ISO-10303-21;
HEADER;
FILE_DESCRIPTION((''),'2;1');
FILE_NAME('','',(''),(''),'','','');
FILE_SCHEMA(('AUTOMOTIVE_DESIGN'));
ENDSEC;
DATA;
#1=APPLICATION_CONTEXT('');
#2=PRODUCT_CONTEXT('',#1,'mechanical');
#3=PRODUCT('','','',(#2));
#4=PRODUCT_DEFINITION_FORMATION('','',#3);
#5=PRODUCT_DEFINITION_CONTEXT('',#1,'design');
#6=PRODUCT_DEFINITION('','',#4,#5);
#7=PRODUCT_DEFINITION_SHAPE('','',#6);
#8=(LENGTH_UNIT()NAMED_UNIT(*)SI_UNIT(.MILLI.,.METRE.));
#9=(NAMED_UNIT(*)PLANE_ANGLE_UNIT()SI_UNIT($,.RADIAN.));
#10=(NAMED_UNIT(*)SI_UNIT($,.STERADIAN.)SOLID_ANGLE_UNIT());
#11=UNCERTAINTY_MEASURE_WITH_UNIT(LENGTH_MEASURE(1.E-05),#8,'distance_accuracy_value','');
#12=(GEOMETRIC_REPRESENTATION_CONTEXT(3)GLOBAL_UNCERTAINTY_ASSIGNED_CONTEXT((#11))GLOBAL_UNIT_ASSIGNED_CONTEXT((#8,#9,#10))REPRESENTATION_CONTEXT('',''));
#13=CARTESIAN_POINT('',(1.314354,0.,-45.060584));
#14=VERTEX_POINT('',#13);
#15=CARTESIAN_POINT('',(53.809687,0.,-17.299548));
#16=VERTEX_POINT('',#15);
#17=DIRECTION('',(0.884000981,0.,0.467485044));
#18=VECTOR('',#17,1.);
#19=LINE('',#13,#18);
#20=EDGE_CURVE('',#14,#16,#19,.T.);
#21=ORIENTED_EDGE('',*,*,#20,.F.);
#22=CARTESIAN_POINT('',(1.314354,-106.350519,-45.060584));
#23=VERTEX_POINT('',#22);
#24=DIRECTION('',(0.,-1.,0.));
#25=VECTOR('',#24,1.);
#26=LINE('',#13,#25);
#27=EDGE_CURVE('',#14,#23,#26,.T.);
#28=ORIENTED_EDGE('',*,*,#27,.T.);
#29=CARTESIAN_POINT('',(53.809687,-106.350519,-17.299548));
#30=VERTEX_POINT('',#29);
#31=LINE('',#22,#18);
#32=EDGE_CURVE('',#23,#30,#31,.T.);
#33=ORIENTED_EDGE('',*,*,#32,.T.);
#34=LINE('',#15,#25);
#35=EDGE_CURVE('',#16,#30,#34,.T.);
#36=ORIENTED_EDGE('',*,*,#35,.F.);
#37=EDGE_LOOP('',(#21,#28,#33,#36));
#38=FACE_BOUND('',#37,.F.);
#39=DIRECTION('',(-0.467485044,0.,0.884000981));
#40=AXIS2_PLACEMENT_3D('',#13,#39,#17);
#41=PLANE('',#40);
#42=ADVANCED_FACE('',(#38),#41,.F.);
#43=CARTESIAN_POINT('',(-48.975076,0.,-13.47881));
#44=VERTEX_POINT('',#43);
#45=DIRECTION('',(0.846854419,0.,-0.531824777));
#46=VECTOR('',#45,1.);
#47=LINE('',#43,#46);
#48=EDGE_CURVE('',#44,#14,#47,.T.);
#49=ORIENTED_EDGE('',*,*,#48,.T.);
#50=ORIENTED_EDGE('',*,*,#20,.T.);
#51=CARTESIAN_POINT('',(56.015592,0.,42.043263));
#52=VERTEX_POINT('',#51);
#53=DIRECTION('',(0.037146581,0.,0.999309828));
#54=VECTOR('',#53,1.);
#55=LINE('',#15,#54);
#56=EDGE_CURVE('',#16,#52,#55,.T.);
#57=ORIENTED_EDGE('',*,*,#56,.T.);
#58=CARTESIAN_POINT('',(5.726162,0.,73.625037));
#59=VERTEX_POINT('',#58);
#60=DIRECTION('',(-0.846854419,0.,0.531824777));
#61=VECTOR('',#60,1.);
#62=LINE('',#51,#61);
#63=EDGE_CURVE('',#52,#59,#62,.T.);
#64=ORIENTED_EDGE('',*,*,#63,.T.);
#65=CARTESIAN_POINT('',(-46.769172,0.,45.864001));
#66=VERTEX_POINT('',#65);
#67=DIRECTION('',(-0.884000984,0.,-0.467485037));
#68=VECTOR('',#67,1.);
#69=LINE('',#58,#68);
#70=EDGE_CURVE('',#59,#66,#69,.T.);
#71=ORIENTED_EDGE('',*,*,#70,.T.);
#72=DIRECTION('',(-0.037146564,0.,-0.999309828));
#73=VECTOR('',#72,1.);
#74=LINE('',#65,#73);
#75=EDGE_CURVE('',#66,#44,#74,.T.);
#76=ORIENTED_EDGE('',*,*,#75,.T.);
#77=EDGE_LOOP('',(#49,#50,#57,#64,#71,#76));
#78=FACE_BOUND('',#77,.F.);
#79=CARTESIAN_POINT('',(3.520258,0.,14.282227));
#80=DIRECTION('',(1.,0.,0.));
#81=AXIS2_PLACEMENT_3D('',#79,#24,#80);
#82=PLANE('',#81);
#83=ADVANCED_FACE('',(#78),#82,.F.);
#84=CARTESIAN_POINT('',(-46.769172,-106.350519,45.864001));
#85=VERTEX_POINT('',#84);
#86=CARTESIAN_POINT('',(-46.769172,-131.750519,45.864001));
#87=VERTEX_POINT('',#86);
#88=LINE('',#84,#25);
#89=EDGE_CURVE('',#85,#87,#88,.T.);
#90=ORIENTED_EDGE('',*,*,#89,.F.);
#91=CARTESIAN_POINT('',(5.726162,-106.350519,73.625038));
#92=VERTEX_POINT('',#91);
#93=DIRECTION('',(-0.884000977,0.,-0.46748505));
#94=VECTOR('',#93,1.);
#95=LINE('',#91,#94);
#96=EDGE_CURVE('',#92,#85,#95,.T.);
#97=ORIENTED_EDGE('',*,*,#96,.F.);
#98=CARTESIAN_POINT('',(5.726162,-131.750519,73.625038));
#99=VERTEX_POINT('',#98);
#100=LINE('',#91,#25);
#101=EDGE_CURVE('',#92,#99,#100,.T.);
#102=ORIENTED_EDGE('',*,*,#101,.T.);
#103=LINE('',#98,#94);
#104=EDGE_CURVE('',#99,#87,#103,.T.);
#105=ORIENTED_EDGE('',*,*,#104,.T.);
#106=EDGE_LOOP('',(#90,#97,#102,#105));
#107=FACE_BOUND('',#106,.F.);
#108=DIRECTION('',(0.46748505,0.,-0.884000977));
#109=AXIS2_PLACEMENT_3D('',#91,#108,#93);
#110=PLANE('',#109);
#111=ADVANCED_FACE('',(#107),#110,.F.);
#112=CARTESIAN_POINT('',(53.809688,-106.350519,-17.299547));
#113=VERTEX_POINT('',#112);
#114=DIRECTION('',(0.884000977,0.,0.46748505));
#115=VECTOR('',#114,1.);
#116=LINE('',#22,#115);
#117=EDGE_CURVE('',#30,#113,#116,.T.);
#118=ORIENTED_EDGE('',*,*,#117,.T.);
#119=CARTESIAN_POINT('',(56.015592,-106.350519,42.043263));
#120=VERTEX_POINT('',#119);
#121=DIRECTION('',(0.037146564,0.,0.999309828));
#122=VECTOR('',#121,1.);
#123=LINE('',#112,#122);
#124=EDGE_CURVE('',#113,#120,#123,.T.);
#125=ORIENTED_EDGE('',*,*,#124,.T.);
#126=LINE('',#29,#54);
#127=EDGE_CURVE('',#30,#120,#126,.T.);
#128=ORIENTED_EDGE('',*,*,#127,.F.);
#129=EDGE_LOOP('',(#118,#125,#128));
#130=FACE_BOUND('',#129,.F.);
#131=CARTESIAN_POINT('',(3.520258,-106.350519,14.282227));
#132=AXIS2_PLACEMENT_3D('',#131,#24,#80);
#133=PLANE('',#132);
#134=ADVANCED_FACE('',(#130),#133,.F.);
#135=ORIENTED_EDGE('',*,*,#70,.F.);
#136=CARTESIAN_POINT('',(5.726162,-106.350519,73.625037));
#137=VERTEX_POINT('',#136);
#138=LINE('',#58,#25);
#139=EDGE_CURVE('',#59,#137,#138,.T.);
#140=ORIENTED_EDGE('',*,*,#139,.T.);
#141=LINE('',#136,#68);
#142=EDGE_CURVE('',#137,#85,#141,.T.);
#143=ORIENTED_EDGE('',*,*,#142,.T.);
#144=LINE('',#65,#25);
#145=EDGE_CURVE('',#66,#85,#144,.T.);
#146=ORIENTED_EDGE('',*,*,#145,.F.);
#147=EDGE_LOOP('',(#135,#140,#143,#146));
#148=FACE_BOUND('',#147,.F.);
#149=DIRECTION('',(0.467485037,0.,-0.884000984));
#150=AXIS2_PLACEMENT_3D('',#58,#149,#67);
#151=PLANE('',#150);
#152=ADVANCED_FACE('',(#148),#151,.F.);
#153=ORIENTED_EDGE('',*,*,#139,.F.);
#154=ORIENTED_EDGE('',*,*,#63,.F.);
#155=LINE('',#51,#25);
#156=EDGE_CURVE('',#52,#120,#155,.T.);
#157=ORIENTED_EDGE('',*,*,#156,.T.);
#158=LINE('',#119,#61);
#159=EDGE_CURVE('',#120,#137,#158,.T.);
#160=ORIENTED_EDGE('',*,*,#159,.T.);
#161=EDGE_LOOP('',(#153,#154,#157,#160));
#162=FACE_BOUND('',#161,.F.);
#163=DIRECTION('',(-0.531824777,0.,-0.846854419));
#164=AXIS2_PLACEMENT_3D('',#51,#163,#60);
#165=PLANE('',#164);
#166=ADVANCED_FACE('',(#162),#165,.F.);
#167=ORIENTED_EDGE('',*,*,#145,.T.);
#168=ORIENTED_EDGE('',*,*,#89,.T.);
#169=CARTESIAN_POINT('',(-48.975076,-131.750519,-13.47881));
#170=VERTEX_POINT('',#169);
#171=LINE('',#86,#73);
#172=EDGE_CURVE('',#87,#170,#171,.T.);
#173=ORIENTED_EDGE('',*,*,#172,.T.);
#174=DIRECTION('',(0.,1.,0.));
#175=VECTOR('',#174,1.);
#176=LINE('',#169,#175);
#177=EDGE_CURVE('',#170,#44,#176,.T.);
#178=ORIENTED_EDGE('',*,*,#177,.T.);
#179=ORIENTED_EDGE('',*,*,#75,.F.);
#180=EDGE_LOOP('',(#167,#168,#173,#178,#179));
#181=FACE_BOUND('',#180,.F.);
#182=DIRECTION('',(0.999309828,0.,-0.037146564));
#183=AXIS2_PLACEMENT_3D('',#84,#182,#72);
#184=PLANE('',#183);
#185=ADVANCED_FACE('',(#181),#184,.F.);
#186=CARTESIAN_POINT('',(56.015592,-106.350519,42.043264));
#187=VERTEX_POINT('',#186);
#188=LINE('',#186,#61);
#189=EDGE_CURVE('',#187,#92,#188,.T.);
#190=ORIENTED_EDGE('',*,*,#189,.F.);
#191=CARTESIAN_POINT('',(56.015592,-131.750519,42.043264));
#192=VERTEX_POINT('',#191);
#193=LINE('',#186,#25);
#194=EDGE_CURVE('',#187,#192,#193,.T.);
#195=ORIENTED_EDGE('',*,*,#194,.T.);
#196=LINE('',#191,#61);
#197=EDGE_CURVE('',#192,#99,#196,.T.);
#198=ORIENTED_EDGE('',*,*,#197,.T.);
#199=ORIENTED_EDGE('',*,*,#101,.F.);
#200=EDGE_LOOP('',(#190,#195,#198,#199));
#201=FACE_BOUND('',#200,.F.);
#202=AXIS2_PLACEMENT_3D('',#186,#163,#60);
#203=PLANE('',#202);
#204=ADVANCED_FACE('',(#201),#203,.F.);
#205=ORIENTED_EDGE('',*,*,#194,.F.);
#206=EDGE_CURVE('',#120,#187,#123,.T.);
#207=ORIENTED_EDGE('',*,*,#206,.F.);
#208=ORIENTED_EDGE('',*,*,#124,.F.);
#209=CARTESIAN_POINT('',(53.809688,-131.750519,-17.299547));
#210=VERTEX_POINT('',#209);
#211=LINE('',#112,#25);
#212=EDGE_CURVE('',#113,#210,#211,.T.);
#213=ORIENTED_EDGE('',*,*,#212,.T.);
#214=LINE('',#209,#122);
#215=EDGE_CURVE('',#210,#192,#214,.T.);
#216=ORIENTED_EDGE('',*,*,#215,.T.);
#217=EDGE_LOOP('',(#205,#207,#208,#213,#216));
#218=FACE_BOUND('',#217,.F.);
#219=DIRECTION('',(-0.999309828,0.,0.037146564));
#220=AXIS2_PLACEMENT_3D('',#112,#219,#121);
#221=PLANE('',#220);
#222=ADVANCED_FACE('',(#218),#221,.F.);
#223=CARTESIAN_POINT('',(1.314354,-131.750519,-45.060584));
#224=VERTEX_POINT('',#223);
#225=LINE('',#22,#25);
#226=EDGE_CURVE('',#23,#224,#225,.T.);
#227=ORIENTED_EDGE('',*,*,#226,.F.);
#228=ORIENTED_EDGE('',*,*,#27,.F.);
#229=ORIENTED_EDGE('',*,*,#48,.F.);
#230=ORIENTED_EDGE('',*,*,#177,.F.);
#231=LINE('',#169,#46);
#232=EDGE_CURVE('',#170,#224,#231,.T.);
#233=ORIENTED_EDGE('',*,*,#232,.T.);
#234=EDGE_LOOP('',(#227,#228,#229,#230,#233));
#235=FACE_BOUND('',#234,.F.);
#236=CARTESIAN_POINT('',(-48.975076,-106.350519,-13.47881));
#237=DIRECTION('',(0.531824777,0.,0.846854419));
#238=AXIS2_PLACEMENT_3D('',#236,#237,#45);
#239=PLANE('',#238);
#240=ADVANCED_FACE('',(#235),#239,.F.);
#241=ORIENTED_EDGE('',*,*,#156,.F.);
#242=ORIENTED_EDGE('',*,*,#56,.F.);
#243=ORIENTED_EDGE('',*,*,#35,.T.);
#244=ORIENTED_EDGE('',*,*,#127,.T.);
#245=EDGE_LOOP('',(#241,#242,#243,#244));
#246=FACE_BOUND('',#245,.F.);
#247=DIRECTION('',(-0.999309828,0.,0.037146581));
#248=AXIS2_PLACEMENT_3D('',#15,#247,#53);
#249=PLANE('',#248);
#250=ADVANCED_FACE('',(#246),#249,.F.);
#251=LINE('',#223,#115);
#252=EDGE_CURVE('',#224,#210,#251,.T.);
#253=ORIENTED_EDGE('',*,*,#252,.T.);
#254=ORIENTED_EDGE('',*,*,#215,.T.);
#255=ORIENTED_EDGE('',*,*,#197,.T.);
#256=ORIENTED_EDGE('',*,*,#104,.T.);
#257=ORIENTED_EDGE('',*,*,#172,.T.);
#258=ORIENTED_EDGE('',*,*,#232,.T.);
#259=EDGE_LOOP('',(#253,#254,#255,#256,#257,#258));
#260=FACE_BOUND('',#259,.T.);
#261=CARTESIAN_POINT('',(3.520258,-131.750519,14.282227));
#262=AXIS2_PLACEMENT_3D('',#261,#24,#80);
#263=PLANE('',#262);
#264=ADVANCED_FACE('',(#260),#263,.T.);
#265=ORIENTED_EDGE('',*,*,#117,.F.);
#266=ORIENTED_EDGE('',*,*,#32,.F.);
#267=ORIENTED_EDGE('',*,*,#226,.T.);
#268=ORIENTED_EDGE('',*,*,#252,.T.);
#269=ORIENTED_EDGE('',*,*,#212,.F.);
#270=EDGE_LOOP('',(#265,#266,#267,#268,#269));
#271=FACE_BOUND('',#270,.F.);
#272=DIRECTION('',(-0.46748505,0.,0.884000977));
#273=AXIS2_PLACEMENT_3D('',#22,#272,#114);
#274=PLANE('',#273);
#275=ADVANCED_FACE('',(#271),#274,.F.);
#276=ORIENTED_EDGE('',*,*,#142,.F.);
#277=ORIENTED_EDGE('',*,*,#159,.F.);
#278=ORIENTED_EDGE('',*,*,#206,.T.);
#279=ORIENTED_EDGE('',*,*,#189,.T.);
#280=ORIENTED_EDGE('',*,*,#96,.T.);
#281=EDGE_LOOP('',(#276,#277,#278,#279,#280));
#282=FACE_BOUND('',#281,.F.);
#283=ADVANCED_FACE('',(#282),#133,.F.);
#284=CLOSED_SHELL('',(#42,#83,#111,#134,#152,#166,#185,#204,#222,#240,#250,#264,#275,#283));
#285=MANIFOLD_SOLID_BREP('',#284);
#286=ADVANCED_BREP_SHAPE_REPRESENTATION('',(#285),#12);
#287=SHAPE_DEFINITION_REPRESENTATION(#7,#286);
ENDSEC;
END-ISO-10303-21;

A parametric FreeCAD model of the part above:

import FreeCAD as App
import Part
import Sketcher

V = App.Vector
Q = App.Units.Quantity

doc = App.newDocument("Part")
body = doc.addObject("PartDesign::Body", "Body")

# Sketch on XZ plane
sketch1 = doc.addObject("Sketcher::SketchObject", "Sketch")
body.addObject(sketch1)
sketch1.AttachmentSupport = (doc.XZ_Plane, [""])
sketch1.MapMode = "FlatFace"
sketch1.addGeometry([
    Part.LineSegment(V(1, -45, 0), V(54, -17, 0)),  # 0
    Part.LineSegment(V(54, -17, 0), V(56, 42, 0)),  # 1
    Part.LineSegment(V(56, 42, 0), V(6, 74, 0)),  # 2
    Part.LineSegment(V(6, 74, 0), V(-47, 46, 0)),  # 3
    Part.LineSegment(V(-47, 46, 0), V(-49, -13, 0)),  # 4
    Part.LineSegment(V(-49, -13, 0), V(1, -45, 0)),  # 5
], False)
sketch1.addConstraint([
    Sketcher.Constraint("Coincident", 0, 2, 1, 1),
    Sketcher.Constraint("Coincident", 1, 2, 2, 1),
    Sketcher.Constraint("Coincident", 2, 2, 3, 1),
    Sketcher.Constraint("Coincident", 3, 2, 4, 1),
    Sketcher.Constraint("Coincident", 4, 2, 5, 1),
    Sketcher.Constraint("Coincident", 5, 2, 0, 1),
    Sketcher.Constraint("Parallel", 0, 3),
    Sketcher.Constraint("Parallel", 1, 4),
    Sketcher.Constraint("Parallel", 2, 5),
    Sketcher.Constraint("Equal", 0, 1),
    Sketcher.Constraint("Equal", 1, 2),
    Sketcher.Constraint("Equal", 2, 3),
    Sketcher.Constraint("DistanceY", -1, 1, 3, 2, 45.864001),
    Sketcher.Constraint("DistanceY", 0, 2, -1, 1, 17.299548),
    Sketcher.Constraint("DistanceX", -1, 1, 1, 2, 56.015592),
    Sketcher.Constraint("DistanceX", 3, 2, -1, 1, 46.769172),
    Sketcher.Constraint("DistanceY", 4, 2, -1, 1, 13.47881),
    Sketcher.Constraint("DistanceX", 3, 2, 0, 2, 100.578859),
])
pad1 = doc.addObject("PartDesign::Pad", "Pad")
body.addObject(pad1)
pad1.Profile = sketch1
pad1.Length = 106.350519

# Sketch on XZ plane
sketch2 = doc.addObject("Sketcher::SketchObject", "Sketch001")
body.addObject(sketch2)
sketch2.AttachmentSupport = (doc.XZ_Plane, [""])
sketch2.MapMode = "FlatFace"
sketch2.AttachmentOffset = App.Placement(V(0, 0, 106.350519), App.Rotation())
sketch2.addGeometry([
    Part.LineSegment(V(-49, -13, 0), V(1, -45, 0)),  # 0
    Part.LineSegment(V(1, -45, 0), V(54, -17, 0)),  # 1
    Part.LineSegment(V(54, -17, 0), V(56, 42, 0)),  # 2
    Part.LineSegment(V(56, 42, 0), V(6, 74, 0)),  # 3
    Part.LineSegment(V(6, 74, 0), V(-47, 46, 0)),  # 4
    Part.LineSegment(V(-47, 46, 0), V(-49, -13, 0)),  # 5
], False)
sketch2.addConstraint([
    Sketcher.Constraint("Coincident", 0, 2, 1, 1),
    Sketcher.Constraint("Coincident", 1, 2, 2, 1),
    Sketcher.Constraint("Coincident", 2, 2, 3, 1),
    Sketcher.Constraint("Coincident", 3, 2, 4, 1),
    Sketcher.Constraint("Coincident", 4, 2, 5, 1),
    Sketcher.Constraint("Coincident", 5, 2, 0, 1),
    Sketcher.Constraint("Parallel", 0, 3),
    Sketcher.Constraint("Parallel", 1, 4),
    Sketcher.Constraint("Parallel", 2, 5),
    Sketcher.Constraint("Equal", 0, 1),
    Sketcher.Constraint("Equal", 1, 2),
    Sketcher.Constraint("Equal", 2, 3),
    Sketcher.Constraint("DistanceY", -1, 1, 4, 2, 45.864001),
    Sketcher.Constraint("DistanceX", -1, 1, 2, 2, 56.015592),
    Sketcher.Constraint("DistanceY", -1, 1, 3, 2, 73.625038),
    Sketcher.Constraint("DistanceX", 4, 2, -1, 1, 46.769172),
    Sketcher.Constraint("DistanceY", 5, 2, -1, 1, 13.47881),
    Sketcher.Constraint("DistanceX", 3, 2, 2, 2, 50.28943),
])
pad2 = doc.addObject("PartDesign::Pad", "Pad001")
body.addObject(pad2)
pad2.Profile = sketch2
pad2.Length = Q("1 in")

doc.recompute()
